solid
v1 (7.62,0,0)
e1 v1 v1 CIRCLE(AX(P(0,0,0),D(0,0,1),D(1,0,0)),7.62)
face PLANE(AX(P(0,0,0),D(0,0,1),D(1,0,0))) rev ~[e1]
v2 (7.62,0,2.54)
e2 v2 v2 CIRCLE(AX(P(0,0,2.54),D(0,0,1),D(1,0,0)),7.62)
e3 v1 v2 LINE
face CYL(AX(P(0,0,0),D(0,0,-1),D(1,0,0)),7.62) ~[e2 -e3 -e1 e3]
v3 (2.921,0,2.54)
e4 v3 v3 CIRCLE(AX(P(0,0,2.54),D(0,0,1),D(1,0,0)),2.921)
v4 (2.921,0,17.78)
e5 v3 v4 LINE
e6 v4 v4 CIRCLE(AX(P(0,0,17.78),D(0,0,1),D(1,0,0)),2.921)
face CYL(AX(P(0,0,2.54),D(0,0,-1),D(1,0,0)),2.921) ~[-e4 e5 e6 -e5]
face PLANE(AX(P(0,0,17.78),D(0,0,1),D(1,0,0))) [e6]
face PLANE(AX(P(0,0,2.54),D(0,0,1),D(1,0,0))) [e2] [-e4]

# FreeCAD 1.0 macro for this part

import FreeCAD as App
import Part
import Sketcher
Q = App.Units.Quantity

doc = App.newDocument("Part")
body = doc.addObject("PartDesign::Body", "Body")

sketch1 = doc.addObject("Sketcher::SketchObject", "Sketch")
body.addObject(sketch1)
sketch1.AttachmentSupport = (doc.XY_Plane, [""])
sketch1.MapMode = "FlatFace"
sketch1.addGeometry(Part.Circle(App.Vector(0, 0, 0), App.Vector(0, 0, 1), 8), False)
sketch1.addConstraint([
    Sketcher.Constraint("Coincident", 0, 3, -1, 1),
    Sketcher.Constraint("Diameter", 0, Q("0.6 in")),
])
pad1 = doc.addObject("PartDesign::Pad", "Pad")
body.addObject(pad1)
pad1.Profile = sketch1
pad1.Length = Q("0.1 in")

sketch2 = doc.addObject("Sketcher::SketchObject", "Sketch001")
body.addObject(sketch2)
sketch2.AttachmentSupport = (doc.XY_Plane, [""])
sketch2.MapMode = "FlatFace"
sketch2.AttachmentOffset = App.Placement(App.Vector(0, 0, 0.1 * 25.4), App.Rotation())
sketch2.addGeometry(Part.Circle(App.Vector(0, 0, 0), App.Vector(0, 0, 1), 2.9), False)
sketch2.addConstraint([
    Sketcher.Constraint("Coincident", 0, 3, -1, 1),
    Sketcher.Constraint("Diameter", 0, Q("0.23 in")),
])
pad2 = doc.addObject("PartDesign::Pad", "Pad001")
body.addObject(pad2)
pad2.Profile = sketch2
pad2.Length = Q("0.6 in")

doc.recompute()
